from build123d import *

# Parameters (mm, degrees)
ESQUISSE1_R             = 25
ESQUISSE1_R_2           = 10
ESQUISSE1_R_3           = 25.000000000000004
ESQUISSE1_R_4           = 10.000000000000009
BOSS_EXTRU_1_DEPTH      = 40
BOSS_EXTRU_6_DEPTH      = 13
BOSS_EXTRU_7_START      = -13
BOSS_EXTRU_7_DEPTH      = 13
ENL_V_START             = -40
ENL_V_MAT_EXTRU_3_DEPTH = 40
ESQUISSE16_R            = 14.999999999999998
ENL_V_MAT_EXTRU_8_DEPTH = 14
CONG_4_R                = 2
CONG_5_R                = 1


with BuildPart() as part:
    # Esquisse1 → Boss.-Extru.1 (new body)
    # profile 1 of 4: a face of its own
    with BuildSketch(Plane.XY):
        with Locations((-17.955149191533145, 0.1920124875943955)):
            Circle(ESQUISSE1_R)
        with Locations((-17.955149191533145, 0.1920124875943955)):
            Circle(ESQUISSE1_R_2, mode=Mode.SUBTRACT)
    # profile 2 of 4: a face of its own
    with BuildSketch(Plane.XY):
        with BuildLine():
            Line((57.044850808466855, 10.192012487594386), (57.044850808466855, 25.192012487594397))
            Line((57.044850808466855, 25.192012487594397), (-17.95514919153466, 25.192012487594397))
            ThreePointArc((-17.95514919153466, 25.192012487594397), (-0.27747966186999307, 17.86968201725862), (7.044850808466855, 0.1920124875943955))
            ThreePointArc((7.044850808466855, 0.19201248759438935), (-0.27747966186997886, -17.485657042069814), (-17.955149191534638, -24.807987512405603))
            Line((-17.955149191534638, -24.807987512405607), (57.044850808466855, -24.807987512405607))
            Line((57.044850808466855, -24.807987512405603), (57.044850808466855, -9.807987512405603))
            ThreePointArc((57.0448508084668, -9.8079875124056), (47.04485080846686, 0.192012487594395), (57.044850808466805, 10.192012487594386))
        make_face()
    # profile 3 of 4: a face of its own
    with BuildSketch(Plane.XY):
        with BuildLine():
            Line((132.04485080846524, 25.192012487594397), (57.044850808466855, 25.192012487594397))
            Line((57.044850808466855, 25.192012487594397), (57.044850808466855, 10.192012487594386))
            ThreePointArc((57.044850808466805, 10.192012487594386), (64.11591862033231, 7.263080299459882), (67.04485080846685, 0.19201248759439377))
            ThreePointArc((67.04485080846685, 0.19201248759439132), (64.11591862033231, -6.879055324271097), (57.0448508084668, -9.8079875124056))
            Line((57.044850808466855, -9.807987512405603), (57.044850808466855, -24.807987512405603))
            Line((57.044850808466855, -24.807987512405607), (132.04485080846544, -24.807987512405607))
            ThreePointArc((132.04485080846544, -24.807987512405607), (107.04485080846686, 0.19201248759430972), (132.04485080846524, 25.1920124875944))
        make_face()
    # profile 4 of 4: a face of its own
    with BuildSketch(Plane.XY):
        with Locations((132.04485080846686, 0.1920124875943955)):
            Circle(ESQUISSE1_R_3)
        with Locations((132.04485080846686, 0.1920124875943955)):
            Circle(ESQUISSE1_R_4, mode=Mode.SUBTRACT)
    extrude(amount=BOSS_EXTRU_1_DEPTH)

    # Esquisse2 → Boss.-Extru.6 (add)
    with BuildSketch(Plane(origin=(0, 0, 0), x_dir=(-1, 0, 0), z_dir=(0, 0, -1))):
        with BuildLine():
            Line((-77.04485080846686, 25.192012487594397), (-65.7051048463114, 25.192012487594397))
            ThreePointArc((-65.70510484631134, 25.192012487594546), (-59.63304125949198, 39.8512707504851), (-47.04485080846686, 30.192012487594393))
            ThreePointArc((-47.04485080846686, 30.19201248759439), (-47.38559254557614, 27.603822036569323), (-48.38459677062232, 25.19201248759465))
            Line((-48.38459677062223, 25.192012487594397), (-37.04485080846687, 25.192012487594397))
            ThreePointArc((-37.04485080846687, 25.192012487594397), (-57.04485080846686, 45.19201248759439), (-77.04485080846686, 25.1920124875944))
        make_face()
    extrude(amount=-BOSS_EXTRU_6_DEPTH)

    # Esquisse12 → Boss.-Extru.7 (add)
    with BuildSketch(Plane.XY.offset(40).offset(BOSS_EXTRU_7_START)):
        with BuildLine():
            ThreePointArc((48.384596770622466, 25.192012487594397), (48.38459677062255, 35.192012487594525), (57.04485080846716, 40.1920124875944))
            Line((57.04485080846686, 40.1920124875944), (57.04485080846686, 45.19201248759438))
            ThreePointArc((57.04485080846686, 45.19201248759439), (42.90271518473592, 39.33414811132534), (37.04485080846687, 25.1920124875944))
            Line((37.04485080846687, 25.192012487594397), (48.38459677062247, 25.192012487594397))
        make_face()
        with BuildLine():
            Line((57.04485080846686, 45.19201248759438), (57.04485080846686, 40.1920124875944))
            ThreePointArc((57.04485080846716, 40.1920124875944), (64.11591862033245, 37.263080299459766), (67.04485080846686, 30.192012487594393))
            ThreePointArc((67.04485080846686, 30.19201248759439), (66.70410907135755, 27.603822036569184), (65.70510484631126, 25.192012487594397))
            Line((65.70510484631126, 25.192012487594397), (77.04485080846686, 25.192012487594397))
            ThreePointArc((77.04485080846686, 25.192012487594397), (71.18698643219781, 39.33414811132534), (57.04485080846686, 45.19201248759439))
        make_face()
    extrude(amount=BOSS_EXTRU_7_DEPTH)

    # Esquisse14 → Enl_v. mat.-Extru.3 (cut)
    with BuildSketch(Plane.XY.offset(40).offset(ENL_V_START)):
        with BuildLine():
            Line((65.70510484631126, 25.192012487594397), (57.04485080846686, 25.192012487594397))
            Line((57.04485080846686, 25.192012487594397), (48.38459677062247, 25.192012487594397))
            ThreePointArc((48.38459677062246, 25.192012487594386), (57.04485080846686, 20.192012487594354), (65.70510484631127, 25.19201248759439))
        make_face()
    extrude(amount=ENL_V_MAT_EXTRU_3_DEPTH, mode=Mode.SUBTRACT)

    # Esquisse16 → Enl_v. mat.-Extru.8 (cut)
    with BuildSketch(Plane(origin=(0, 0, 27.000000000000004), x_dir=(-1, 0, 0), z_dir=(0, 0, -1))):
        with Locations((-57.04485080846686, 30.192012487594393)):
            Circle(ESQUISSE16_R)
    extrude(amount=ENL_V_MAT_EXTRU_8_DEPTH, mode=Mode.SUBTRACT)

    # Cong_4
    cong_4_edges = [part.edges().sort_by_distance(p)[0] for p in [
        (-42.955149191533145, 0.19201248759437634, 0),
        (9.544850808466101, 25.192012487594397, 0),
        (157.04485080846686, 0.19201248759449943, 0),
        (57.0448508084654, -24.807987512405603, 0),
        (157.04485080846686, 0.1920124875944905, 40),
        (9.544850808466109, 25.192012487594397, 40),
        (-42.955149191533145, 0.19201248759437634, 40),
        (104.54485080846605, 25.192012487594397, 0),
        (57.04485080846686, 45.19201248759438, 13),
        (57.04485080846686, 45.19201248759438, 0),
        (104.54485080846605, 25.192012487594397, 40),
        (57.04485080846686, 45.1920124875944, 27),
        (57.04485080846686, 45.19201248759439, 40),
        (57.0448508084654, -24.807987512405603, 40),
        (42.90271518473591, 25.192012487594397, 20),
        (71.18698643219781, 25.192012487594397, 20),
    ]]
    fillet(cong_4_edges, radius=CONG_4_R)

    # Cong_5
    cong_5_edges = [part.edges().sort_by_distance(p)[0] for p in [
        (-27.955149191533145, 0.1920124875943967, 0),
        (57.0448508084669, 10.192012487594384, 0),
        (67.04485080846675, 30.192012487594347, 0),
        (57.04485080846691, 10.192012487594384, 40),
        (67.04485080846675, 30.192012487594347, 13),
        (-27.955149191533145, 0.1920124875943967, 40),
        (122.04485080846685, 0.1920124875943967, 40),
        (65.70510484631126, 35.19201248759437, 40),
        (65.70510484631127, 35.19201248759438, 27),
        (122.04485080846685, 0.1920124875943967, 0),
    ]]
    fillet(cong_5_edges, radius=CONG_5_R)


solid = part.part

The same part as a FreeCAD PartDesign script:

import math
import FreeCAD as App
import Part
import Sketcher


def edges_at(feature, points):
    """Names of the edges that pass closest to the given points."""
    edges = feature.Shape.Edges
    near = lambda p: min(range(len(edges)), key=lambda i: edges[i].distToShape(Part.Vertex(*p))[0])
    return sorted({f"Edge{near(p) + 1}" for p in points})

doc = App.newDocument("Part")
params = doc.addObject("Spreadsheet::Sheet", "Params")
for row, (alias, value) in enumerate([
    ("sketch1_diameter", "20 mm"),
    ("sketch1_radius", "25 mm"),
    ("sketch1_width", "150 mm"),
    ("pad1_length", "40 mm"),
    ("sketch2_radius", "10 mm"),
    ("sketch2_radius2", "20 mm"),
    ("pad2_length", "13 mm"),
    ("sketch3_radius", "10 mm"),
    ("sketch3_radius2", "20 mm"),
    ("pad3_length", "13 mm"),
    ("sketch4_radius", "10 mm"),
    ("pocket1_length", "40 mm"),
    ("sketch5_diameter", "30 mm"),
    ("pocket2_length", "14 mm"),
    ("fillet_radius", "2 mm"),
    ("fillet2_radius", "1 mm"),
], start=1):
    params.set(f"A{row}", alias)
    params.set(f"B{row}", "=" + value)
    params.setAlias(f"B{row}", alias)

body = doc.addObject("PartDesign::Body", "Body")

sketch1 = doc.addObject("Sketcher::SketchObject", "Sketch")
body.addObject(sketch1)
sketch1.AttachmentSupport = (doc.XY_Plane, [""])
sketch1.MapMode = "FlatFace"
sketch1.addGeometry([
    Part.ArcOfCircle(Part.Circle(App.Vector(-17.955149, 0.192012, 0), App.Vector(0, 0, 1), 25), math.radians(90), math.radians(270)),
    Part.LineSegment(App.Vector(-17.955149, -24.807988, 0), App.Vector(132.044851, -24.807988, 0)),
    Part.ArcOfCircle(Part.Circle(App.Vector(132.044851, 0.192012, 0), App.Vector(0, 0, 1), 25), math.radians(-90), math.radians(90)),
    Part.LineSegment(App.Vector(132.044851, 25.192012, 0), App.Vector(-17.955149, 25.192012, 0)),
    Part.Circle(App.Vector(-17.955149, 0.192012, 0), App.Vector(0, 0, 1), 10),
    Part.Circle(App.Vector(57.044851, 0.192012, 0), App.Vector(0, 0, 1), 10),
    Part.Circle(App.Vector(132.044851, 0.192012, 0), App.Vector(0, 0, 1), 10),
], False)
sketch1.addConstraint([
    Sketcher.Constraint("Tangent", 0, 2, 1, 1),
    Sketcher.Constraint("Tangent", 1, 2, 2, 1),
    Sketcher.Constraint("Tangent", 2, 2, 3, 1),
    Sketcher.Constraint("Tangent", 3, 2, 0, 1),
    Sketcher.Constraint("Horizontal", 1),
    Sketcher.Constraint("Horizontal", 3),
    Sketcher.Constraint("Coincident", 4, 3, 0, 3),
    Sketcher.Constraint("Coincident", 6, 3, 2, 3),
    Sketcher.Constraint("Equal", 4, 5),
    Sketcher.Constraint("Equal", 5, 6),
    Sketcher.Constraint("Horizontal", 4, 3, 5, 3),
    Sketcher.Constraint("Diameter", 4, 20.0),
    Sketcher.Constraint("Radius", 0, 25.0),
    Sketcher.Constraint("DistanceX", 1, 1, 1, 2, 150.0),
    Sketcher.Constraint("DistanceX", 0, 3, 5, 3, 75.0),
    Sketcher.Constraint("DistanceX", 0, 3, -1, 1, 17.955149),
    Sketcher.Constraint("DistanceY", -1, 1, 0, 3, 0.192012),
])
sketch1.setExpression("Constraints[11]", "Params.sketch1_diameter")
sketch1.setExpression("Constraints[12]", "Params.sketch1_radius")
sketch1.setExpression("Constraints[13]", "Params.sketch1_width")
pad1 = doc.addObject("PartDesign::Pad", "Pad")
body.addObject(pad1)
pad1.Profile = sketch1
pad1.setExpression("Length", "Params.pad1_length")

sketch2 = doc.addObject("Sketcher::SketchObject", "Sketch001")
body.addObject(sketch2)
sketch2.AttachmentSupport = (doc.XY_Plane, [""])
sketch2.MapMode = "FlatFace"
sketch2.addGeometry([
    Part.LineSegment(App.Vector(77.044851, 25.192012, 0), App.Vector(65.705105, 25.192012, 0)),
    Part.ArcOfCircle(Part.Circle(App.Vector(57.044851, 30.192012, 0), App.Vector(0, 0, 1), 10), math.radians(-30), math.radians(210)),
    Part.LineSegment(App.Vector(48.384597, 25.192012, 0), App.Vector(37.044851, 25.192012, 0)),
    Part.ArcOfCircle(Part.Circle(App.Vector(57.044851, 25.192012, 0), App.Vector(0, 0, 1), 20), math.radians(0), math.radians(180)),
], False)
sketch2.addConstraint([
    Sketcher.Constraint("Coincident", 0, 2, 1, 1),
    Sketcher.Constraint("Coincident", 1, 2, 2, 1),
    Sketcher.Constraint("Coincident", 2, 2, 3, 2),
    Sketcher.Constraint("Coincident", 3, 1, 0, 1),
    Sketcher.Constraint("Horizontal", 0),
    Sketcher.Constraint("Horizontal", 2),
    Sketcher.Constraint("Horizontal", 3, 3, 0, 2),
    Sketcher.Constraint("Horizontal", 0, 2, 1, 2),
    Sketcher.Constraint("Vertical", 1, 3, 3, 3),
    Sketcher.Constraint("Radius", 1, 10.0),
    Sketcher.Constraint("Radius", 3, 20.0),
    Sketcher.Constraint("DistanceY", 3, 3, 1, 3, 5.0),
    Sketcher.Constraint("DistanceX", -1, 1, 1, 3, 57.044851),
    Sketcher.Constraint("DistanceY", -1, 1, 1, 3, 30.192012),
])
sketch2.setExpression("Constraints[9]", "Params.sketch2_radius")
sketch2.setExpression("Constraints[10]", "Params.sketch2_radius2")
pad2 = doc.addObject("PartDesign::Pad", "Pad001")
body.addObject(pad2)
pad2.Profile = sketch2
pad2.setExpression("Length", "Params.pad2_length")

sketch3 = doc.addObject("Sketcher::SketchObject", "Sketch002")
body.addObject(sketch3)
sketch3.AttachmentSupport = (doc.XY_Plane, [""])
sketch3.MapMode = "FlatFace"
sketch3.AttachmentOffset = App.Placement(App.Vector(0, 0, 27), App.Rotation())
sketch3.addGeometry([
    Part.LineSegment(App.Vector(37.044851, 25.192012, 0), App.Vector(48.384597, 25.192012, 0)),
    Part.ArcOfCircle(Part.Circle(App.Vector(57.044851, 30.192012, 0), App.Vector(0, 0, 1), 10), math.radians(-30), math.radians(210)),
    Part.LineSegment(App.Vector(65.705105, 25.192012, 0), App.Vector(77.044851, 25.192012, 0)),
    Part.ArcOfCircle(Part.Circle(App.Vector(57.044851, 25.192012, 0), App.Vector(0, 0, 1), 20), math.radians(0), math.radians(180)),
], False)
sketch3.addConstraint([
    Sketcher.Constraint("Coincident", 0, 2, 1, 2),
    Sketcher.Constraint("Coincident", 1, 1, 2, 1),
    Sketcher.Constraint("Coincident", 2, 2, 3, 1),
    Sketcher.Constraint("Coincident", 3, 2, 0, 1),
    Sketcher.Constraint("Horizontal", 0),
    Sketcher.Constraint("Horizontal", 2),
    Sketcher.Constraint("Horizontal", 3, 3, 0, 2),
    Sketcher.Constraint("Horizontal", 0, 2, 1, 1),
    Sketcher.Constraint("Vertical", 1, 3, 3, 3),
    Sketcher.Constraint("Radius", 1, 10.0),
    Sketcher.Constraint("Radius", 3, 20.0),
    Sketcher.Constraint("DistanceY", 3, 3, 1, 3, 5.0),
    Sketcher.Constraint("DistanceX", -1, 1, 1, 3, 57.044851),
    Sketcher.Constraint("DistanceY", -1, 1, 1, 3, 30.192012),
])
sketch3.setExpression("Constraints[9]", "Params.sketch3_radius")
sketch3.setExpression("Constraints[10]", "Params.sketch3_radius2")
pad3 = doc.addObject("PartDesign::Pad", "Pad002")
body.addObject(pad3)
pad3.Profile = sketch3
pad3.setExpression("Length", "Params.pad3_length")

sketch4 = doc.addObject("Sketcher::SketchObject", "Sketch003")
body.addObject(sketch4)
sketch4.AttachmentSupport = (doc.XY_Plane, [""])
sketch4.MapMode = "FlatFace"
sketch4.addGeometry([
    Part.LineSegment(App.Vector(65.705105, 25.192012, 0), App.Vector(48.384597, 25.192012, 0)),
    Part.ArcOfCircle(Part.Circle(App.Vector(57.044851, 30.192012, 0), App.Vector(0, 0, 1), 10), math.radians(-150), math.radians(-30)),
], False)
sketch4.addConstraint([
    Sketcher.Constraint("Coincident", 0, 1, 1, 2),
    Sketcher.Constraint("Coincident", 1, 1, 0, 2),
    Sketcher.Constraint("Horizontal", 0),
    Sketcher.Constraint("Radius", 1, 10.0),
    Sketcher.Constraint("DistanceY", 0, 1, 1, 3, 5.0),
    Sketcher.Constraint("DistanceX", -1, 1, 1, 3, 57.044851),
    Sketcher.Constraint("DistanceY", -1, 1, 1, 3, 30.192012),
])
sketch4.setExpression("Constraints[3]", "Params.sketch4_radius")
pocket1 = doc.addObject("PartDesign::Pocket", "Pocket")
body.addObject(pocket1)
pocket1.Profile = sketch4
pocket1.setExpression("Length", "Params.pocket1_length")
pocket1.Reversed = True

sketch5 = doc.addObject("Sketcher::SketchObject", "Sketch004")
body.addObject(sketch5)
sketch5.AttachmentSupport = (doc.XY_Plane, [""])
sketch5.MapMode = "FlatFace"
sketch5.AttachmentOffset = App.Placement(App.Vector(0, 0, 27), App.Rotation())
sketch5.addGeometry(Part.Circle(App.Vector(57.044851, 30.192012, 0), App.Vector(0, 0, 1), 15), False)
sketch5.addConstraint([
    Sketcher.Constraint("Diameter", 0, 30.0),
    Sketcher.Constraint("DistanceX", -1, 1, 0, 3, 57.044851),
    Sketcher.Constraint("DistanceY", -1, 1, 0, 3, 30.192012),
])
sketch5.setExpression("Constraints[0]", "Params.sketch5_diameter")
pocket2 = doc.addObject("PartDesign::Pocket", "Pocket001")
body.addObject(pocket2)
pocket2.Profile = sketch5
pocket2.setExpression("Length", "Params.pocket2_length")
doc.recompute()

fillet = doc.addObject("PartDesign::Fillet", "Fillet")
body.addObject(fillet)
fillet.Base = (pocket2, edges_at(pocket2, [
    (-42.955, 0.192, 0),
    (9.545, 25.192, 0),
    (157.045, 0.192, 0),
    (57.045, -24.808, 0),
    (157.045, 0.192, 40),
    (9.545, 25.192, 40),
    (-42.955, 0.192, 40),
    (104.545, 25.192, 0),
    (57.045, 45.192, 13),
    (57.045, 45.192, 0),
    (104.545, 25.192, 40),
    (57.045, 45.192, 27),
    (57.045, 45.192, 40),
    (57.045, -24.808, 40),
    (42.903, 25.192, 20),
    (71.187, 25.192, 20),
]))
fillet.setExpression("Radius", "Params.fillet_radius")
doc.recompute()

fillet2 = doc.addObject("PartDesign::Fillet", "Fillet001")
body.addObject(fillet2)
fillet2.Base = (fillet, edges_at(fillet, [
    (-27.955, 0.192, 0),
    (57.045, 10.192, 0),
    (65.705, 35.192, 0),
    (57.045, 10.192, 40),
    (65.705, 35.192, 13),
    (-27.955, 0.192, 40),
    (122.045, 0.192, 40),
    (65.705, 35.192, 40),
    (65.705, 35.192, 27),
    (122.045, 0.192, 0),
]))
fillet2.setExpression("Radius", "Params.fillet2_radius")

doc.recompute()
